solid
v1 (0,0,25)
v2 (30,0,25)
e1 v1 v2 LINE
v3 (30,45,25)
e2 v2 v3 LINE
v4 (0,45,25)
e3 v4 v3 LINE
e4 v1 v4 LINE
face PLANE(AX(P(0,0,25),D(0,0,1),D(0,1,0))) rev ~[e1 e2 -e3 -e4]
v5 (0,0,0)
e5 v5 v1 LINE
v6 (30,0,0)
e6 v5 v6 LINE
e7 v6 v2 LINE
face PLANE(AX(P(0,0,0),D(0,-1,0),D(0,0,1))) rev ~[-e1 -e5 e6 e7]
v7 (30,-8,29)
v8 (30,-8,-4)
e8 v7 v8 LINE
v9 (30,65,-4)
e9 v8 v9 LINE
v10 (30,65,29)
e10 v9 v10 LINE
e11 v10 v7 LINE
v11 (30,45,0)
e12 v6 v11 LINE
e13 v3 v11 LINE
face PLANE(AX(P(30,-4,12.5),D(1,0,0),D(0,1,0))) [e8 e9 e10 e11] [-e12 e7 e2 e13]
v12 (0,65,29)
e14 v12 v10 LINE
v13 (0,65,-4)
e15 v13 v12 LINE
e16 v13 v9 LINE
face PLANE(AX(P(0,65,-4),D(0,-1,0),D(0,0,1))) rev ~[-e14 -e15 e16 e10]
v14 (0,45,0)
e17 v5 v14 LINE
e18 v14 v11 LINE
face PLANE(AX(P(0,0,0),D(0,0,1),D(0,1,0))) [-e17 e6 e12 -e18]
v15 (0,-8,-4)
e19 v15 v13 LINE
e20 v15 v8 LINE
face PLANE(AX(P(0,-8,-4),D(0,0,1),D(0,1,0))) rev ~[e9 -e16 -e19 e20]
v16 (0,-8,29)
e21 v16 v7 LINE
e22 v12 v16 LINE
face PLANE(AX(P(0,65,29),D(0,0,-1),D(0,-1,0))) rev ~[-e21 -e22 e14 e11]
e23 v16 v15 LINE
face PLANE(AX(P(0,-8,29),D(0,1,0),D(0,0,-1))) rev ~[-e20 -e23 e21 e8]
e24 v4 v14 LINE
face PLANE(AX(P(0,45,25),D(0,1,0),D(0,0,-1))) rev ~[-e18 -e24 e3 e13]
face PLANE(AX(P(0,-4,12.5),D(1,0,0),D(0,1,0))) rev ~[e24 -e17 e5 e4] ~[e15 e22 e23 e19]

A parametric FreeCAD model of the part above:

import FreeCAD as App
import Part
import Sketcher

V = App.Vector
Q = App.Units.Quantity

doc = App.newDocument("Part")
body = doc.addObject("PartDesign::Body", "Body")

# Sketch on YZ plane
sketch1 = body.newObject("Sketcher::SketchObject", "Sketch")
sketch1.AttachmentSupport = (doc.getObject("YZ_Plane"), [""])
sketch1.MapMode = "FlatFace"
sketch1.addGeometry([
    Part.LineSegment(V(-8, 29, 0), V(-8, -4, 0)),  # 0
    Part.LineSegment(V(-8, -4, 0), V(65, -4, 0)),  # 1
    Part.LineSegment(V(65, -4, 0), V(65, 29, 0)),  # 2
    Part.LineSegment(V(65, 29, 0), V(-8, 29, 0)),  # 3
    Part.LineSegment(V(0, 0, 0), V(0, 25, 0)),  # 4
    Part.LineSegment(V(0, 25, 0), V(45, 25, 0)),  # 5
    Part.LineSegment(V(45, 25, 0), V(45, 0, 0)),  # 6
    Part.LineSegment(V(45, 0, 0), V(0, 0, 0)),  # 7
], False)
sketch1.addConstraint([
    Sketcher.Constraint("Coincident", 0, 2, 1, 1),
    Sketcher.Constraint("Coincident", 1, 2, 2, 1),
    Sketcher.Constraint("Coincident", 2, 2, 3, 1),
    Sketcher.Constraint("Coincident", 3, 2, 0, 1),
    Sketcher.Constraint("Coincident", 4, 2, 5, 1),
    Sketcher.Constraint("Coincident", 5, 2, 6, 1),
    Sketcher.Constraint("Coincident", 6, 2, 7, 1),
    Sketcher.Constraint("Coincident", 7, 2, 4, 1),
    Sketcher.Constraint("Vertical", 0),
    Sketcher.Constraint("Horizontal", 1),
    Sketcher.Constraint("Vertical", 2),
    Sketcher.Constraint("Horizontal", 3),
    Sketcher.Constraint("Vertical", 4),
    Sketcher.Constraint("Horizontal", 5),
    Sketcher.Constraint("Vertical", 6),
    Sketcher.Constraint("Horizontal", 7),
    Sketcher.Constraint("Coincident", 7, 2, -1, 1),
    Sketcher.Constraint("DistanceX", 1, 1, 1, 2, Q("73 mm")),
    Sketcher.Constraint("DistanceX", 5, 1, 5, 2, Q("45 mm")),
    Sketcher.Constraint("DistanceY", 0, 2, 0, 1, Q("33 mm")),
    Sketcher.Constraint("DistanceY", 4, 1, 4, 2, Q("25 mm")),
    Sketcher.Constraint("DistanceX", 0, 2, -1, 1, Q("8 mm")),
    Sketcher.Constraint("DistanceY", 0, 2, -1, 1, Q("4 mm")),
])
pad1 = body.newObject("PartDesign::Pad", "Pad")
pad1.Profile = sketch1
pad1.Length = 30

doc.recompute()
